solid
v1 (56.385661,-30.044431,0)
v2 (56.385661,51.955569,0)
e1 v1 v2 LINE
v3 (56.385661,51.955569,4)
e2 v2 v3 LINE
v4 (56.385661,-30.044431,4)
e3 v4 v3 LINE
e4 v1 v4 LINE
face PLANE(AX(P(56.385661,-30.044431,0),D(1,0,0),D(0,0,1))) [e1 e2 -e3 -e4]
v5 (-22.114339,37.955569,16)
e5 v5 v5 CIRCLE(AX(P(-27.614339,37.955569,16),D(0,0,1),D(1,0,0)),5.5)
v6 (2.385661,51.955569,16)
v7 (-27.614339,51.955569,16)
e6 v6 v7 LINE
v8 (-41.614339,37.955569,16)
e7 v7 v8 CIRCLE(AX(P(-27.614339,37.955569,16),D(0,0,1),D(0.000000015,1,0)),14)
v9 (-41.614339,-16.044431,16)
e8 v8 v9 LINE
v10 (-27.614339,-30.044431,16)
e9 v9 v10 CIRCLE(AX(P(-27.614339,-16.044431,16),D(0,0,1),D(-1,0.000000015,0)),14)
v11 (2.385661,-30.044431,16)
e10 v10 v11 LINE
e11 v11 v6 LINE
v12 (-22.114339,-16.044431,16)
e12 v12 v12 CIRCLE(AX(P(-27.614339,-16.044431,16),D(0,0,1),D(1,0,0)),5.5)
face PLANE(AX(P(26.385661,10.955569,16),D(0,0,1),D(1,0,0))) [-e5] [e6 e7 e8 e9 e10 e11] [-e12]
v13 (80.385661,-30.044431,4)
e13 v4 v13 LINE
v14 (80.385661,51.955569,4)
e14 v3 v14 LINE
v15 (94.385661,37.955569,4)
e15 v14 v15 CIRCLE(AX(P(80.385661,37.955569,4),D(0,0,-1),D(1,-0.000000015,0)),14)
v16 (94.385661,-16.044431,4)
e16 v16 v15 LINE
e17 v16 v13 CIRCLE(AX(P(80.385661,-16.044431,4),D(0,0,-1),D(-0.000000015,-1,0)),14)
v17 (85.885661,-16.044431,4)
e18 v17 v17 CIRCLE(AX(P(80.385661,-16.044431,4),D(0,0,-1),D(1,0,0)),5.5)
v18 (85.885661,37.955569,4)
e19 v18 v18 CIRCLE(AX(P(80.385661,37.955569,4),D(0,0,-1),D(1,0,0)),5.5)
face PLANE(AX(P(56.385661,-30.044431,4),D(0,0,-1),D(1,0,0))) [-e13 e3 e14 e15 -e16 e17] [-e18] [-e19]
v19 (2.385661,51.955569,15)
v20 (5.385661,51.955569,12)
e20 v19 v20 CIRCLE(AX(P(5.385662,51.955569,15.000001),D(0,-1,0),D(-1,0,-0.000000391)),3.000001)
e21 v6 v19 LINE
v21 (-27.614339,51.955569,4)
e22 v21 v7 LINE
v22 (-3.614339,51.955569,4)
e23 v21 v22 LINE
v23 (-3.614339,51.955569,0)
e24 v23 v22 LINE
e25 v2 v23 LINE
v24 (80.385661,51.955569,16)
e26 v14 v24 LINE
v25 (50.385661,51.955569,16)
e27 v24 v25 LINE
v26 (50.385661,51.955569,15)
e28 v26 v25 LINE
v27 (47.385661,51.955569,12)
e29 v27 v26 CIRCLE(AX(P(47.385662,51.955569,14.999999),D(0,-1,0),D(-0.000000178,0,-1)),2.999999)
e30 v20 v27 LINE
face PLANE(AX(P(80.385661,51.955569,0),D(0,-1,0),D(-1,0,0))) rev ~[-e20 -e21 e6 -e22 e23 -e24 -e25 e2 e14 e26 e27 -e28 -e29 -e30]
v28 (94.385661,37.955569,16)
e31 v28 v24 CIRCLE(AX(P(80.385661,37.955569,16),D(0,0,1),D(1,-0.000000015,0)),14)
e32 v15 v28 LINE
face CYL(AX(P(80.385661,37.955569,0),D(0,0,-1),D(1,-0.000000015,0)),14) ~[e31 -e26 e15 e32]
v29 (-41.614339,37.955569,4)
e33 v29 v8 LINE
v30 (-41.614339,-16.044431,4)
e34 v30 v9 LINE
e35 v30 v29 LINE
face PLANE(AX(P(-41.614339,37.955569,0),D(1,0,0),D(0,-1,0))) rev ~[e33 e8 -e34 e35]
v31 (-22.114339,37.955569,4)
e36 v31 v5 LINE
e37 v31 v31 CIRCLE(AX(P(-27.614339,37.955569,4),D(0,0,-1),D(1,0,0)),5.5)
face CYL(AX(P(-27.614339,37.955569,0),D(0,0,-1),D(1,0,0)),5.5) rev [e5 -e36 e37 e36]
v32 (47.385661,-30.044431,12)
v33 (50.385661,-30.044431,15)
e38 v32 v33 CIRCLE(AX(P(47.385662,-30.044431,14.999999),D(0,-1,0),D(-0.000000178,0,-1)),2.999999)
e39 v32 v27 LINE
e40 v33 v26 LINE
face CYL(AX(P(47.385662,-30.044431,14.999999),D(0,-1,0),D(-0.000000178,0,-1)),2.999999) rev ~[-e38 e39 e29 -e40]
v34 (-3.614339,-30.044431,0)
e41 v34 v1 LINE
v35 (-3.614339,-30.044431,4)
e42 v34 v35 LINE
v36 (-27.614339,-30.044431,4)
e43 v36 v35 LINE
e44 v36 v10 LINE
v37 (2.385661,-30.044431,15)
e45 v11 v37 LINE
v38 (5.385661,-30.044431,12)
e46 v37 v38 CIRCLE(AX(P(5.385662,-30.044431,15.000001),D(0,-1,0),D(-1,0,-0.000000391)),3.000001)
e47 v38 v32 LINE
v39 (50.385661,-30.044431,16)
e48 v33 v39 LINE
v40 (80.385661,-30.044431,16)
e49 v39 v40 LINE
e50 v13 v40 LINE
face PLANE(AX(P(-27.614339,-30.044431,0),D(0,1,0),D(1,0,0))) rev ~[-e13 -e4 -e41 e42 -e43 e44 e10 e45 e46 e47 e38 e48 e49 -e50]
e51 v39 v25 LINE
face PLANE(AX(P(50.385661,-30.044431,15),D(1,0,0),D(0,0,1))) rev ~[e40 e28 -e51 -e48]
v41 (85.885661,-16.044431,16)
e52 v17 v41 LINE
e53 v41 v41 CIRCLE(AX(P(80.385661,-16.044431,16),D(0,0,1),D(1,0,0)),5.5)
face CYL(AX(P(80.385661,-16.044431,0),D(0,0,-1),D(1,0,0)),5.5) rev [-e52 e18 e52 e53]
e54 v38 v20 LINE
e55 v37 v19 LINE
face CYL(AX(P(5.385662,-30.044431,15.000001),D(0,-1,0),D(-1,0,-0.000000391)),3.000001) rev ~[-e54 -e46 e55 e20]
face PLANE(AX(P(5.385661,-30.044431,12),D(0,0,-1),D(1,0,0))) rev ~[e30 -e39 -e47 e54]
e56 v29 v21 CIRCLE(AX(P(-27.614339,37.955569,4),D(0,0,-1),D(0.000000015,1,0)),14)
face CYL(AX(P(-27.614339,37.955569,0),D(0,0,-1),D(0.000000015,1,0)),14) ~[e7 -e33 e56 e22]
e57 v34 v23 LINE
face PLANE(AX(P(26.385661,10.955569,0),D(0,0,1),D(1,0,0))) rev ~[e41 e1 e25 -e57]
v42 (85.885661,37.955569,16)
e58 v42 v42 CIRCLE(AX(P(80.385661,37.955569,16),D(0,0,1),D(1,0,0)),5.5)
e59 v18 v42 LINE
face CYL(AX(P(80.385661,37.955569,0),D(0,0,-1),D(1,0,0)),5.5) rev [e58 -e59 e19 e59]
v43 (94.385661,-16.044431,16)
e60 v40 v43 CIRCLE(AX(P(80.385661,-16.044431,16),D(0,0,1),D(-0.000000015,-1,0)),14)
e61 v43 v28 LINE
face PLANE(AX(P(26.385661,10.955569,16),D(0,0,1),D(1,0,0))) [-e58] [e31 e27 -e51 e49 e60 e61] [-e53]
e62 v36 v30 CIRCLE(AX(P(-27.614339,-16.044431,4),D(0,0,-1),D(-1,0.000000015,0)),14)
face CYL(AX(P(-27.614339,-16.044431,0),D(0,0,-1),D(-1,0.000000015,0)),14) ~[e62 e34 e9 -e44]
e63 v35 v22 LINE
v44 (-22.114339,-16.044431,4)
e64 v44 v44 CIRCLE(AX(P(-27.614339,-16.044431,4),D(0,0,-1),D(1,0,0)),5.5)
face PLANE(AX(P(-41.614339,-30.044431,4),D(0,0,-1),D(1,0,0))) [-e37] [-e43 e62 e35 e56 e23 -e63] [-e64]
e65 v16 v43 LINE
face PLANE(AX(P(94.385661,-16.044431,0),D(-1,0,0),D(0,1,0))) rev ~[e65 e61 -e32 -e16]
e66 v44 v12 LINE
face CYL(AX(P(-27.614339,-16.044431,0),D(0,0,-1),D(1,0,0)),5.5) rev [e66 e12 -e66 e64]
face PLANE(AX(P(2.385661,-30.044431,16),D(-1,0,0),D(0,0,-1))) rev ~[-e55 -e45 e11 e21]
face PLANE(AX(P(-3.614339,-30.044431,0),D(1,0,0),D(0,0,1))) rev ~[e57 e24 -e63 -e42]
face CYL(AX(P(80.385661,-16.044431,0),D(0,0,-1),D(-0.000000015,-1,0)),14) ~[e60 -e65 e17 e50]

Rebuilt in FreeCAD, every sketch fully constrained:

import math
import FreeCAD as App
import Part
import Sketcher

V = App.Vector
Q = App.Units.Quantity


def add_polygon(sketch, points):
    """Adds a closed chain of lines whose ends are joined by coincident constraints."""
    first, n = sketch.GeometryCount, len(points)
    for a, b in zip(points, points[1:] + points[:1]):
        sketch.addGeometry(Part.LineSegment(App.Vector(*a, 0), App.Vector(*b, 0)), False)
    for i in range(n):
        sketch.addConstraint(Sketcher.Constraint("Coincident", first + i, 2, first + (i + 1) % n, 1))

doc = App.newDocument("Part")
body = doc.addObject("PartDesign::Body", "Body")

sketch1 = body.newObject("Sketcher::SketchObject", "Sketch")
sketch1.AttachmentSupport = (doc.getObject("XY_Plane"), [""])
sketch1.MapMode = "FlatFace"
sketch1.addGeometry([
    Part.LineSegment(V(80, 52, 0), V(-28, 52, 0)),
    Part.ArcOfCircle(Part.Circle(V(-28, 38, 0), V(0, 0, 1), 14), math.radians(90), math.radians(180)),
    Part.LineSegment(V(-42, 38, 0), V(-42, -16, 0)),
    Part.ArcOfCircle(Part.Circle(V(-28, -16, 0), V(0, 0, 1), 14), math.radians(180), math.radians(270)),
    Part.LineSegment(V(-28, -30, 0), V(80, -30, 0)),
    Part.ArcOfCircle(Part.Circle(V(80, -16, 0), V(0, 0, 1), 14), math.radians(-90), math.radians(0)),
    Part.LineSegment(V(94, -16, 0), V(94, 38, 0)),
    Part.ArcOfCircle(Part.Circle(V(80, 38, 0), V(0, 0, 1), 14), math.radians(0), math.radians(90)),
    Part.Circle(V(-28, -16, 0), V(0, 0, 1), 6),
    Part.Circle(V(80, -16, 0), V(0, 0, 1), 6),
    Part.Circle(V(-28, 38, 0), V(0, 0, 1), 6),
    Part.Circle(V(80, 38, 0), V(0, 0, 1), 6),
], False)
sketch1.addConstraint([
    Sketcher.Constraint("Tangent", 0, 2, 1, 1),
    Sketcher.Constraint("Tangent", 1, 2, 2, 1),
    Sketcher.Constraint("Tangent", 2, 2, 3, 1),
    Sketcher.Constraint("Tangent", 3, 2, 4, 1),
    Sketcher.Constraint("Tangent", 4, 2, 5, 1),
    Sketcher.Constraint("Tangent", 5, 2, 6, 1),
    Sketcher.Constraint("Tangent", 6, 2, 7, 1),
    Sketcher.Constraint("Tangent", 7, 2, 0, 1),
    Sketcher.Constraint("Horizontal", 0),
    Sketcher.Constraint("Vertical", 2),
    Sketcher.Constraint("Horizontal", 4),
    Sketcher.Constraint("Vertical", 6),
    Sketcher.Constraint("Coincident", 8, 3, 3, 3),
    Sketcher.Constraint("Coincident", 9, 3, 5, 3),
    Sketcher.Constraint("Coincident", 10, 3, 1, 3),
    Sketcher.Constraint("Coincident", 11, 3, 7, 3),
    Sketcher.Constraint("Equal", 1, 3),
    Sketcher.Constraint("Equal", 3, 5),
    Sketcher.Constraint("Equal", 5, 7),
    Sketcher.Constraint("Equal", 8, 9),
    Sketcher.Constraint("Equal", 9, 10),
    Sketcher.Constraint("Equal", 10, 11),
    Sketcher.Constraint("Diameter", 8, Q("11 mm")),
    Sketcher.Constraint("Radius", 1, Q("14 mm")),
    Sketcher.Constraint("DistanceX", 0, 2, 0, 1, Q("108 mm")),
    Sketcher.Constraint("DistanceY", 2, 2, 2, 1, Q("54 mm")),
    Sketcher.Constraint("DistanceX", 1, 3, -1, 1, Q("27.614339 mm")),
    Sketcher.Constraint("DistanceY", -1, 1, 1, 3, Q("37.955569 mm")),
])
pad1 = body.newObject("PartDesign::Pad", "Pad")
pad1.Profile = sketch1
pad1.Length = 16

sketch2 = body.newObject("Sketcher::SketchObject", "Sketch001")
sketch2.AttachmentSupport = (doc.getObject("XZ_Plane"), [""])
sketch2.MapMode = "FlatFace"
sketch2.AttachmentOffset = App.Placement(V(0, 0, 30.044431), App.Rotation())
sketch2.addGeometry(Part.LineSegment(V(50.4, 16, 0), V(2.4, 16, 0)), False)
sketch2.addGeometry(Part.LineSegment(V(2.4, 16, 0), V(2.4, 15, 0)), False)
sketch2.addGeometry(Part.ArcOfCircle(Part.Circle(V(5.4, 15, 0), V(0, 0, 1), 3), math.radians(-180), math.radians(-90)), False)
sketch2.addGeometry(Part.LineSegment(V(5.4, 12, 0), V(47.4, 12, 0)), False)
sketch2.addGeometry(Part.ArcOfCircle(Part.Circle(V(47.4, 15, 0), V(0, 0, 1), 3), math.radians(-90), math.radians(0)), False)
sketch2.addGeometry(Part.LineSegment(V(50.4, 15, 0), V(50.4, 16, 0)), False)
add_polygon(sketch2, [(56.4, 4), (56.4, 0), (94.4, 0), (94.4, 4)])
add_polygon(sketch2, [(-41.6, 4), (-41.6, 0), (-3.6, 0), (-3.6, 4)])
sketch2.addConstraint([
    Sketcher.Constraint("Coincident", 0, 2, 1, 1),
    Sketcher.Constraint("Tangent", 1, 2, 2, 1),
    Sketcher.Constraint("Tangent", 2, 2, 3, 1),
    Sketcher.Constraint("Tangent", 3, 2, 4, 1),
    Sketcher.Constraint("Tangent", 4, 2, 5, 1),
    Sketcher.Constraint("Coincident", 5, 2, 0, 1),
    Sketcher.Constraint("Horizontal", 0),
    Sketcher.Constraint("Vertical", 1),
    Sketcher.Constraint("Horizontal", 3),
    Sketcher.Constraint("Vertical", 5),
    Sketcher.Constraint("Vertical", 6),
    Sketcher.Constraint("Horizontal", 7),
    Sketcher.Constraint("Vertical", 8),
    Sketcher.Constraint("Horizontal", 9),
    Sketcher.Constraint("Vertical", 10),
    Sketcher.Constraint("Horizontal", 11),
    Sketcher.Constraint("Vertical", 12),
    Sketcher.Constraint("Horizontal", 13),
    Sketcher.Constraint("Equal", 2, 4),
    Sketcher.Constraint("PointOnObject", 6, 2, -1),
    Sketcher.Constraint("PointOnObject", 10, 2, -1),
    Sketcher.Constraint("Horizontal", 9, 2, 12, 2),
    Sketcher.Constraint("Equal", 9, 11),
    Sketcher.Constraint("Radius", 2, Q("3.000001 mm")),
    Sketcher.Constraint("DistanceX", 0, 2, 0, 1, Q("48 mm")),
    Sketcher.Constraint("DistanceX", 7, 1, 7, 2, Q("38 mm")),
    Sketcher.Constraint("DistanceY", 1, 2, 1, 1, Q("1 mm")),
    Sketcher.Constraint("DistanceY", 6, 2, 6, 1, Q("4 mm")),
    Sketcher.Constraint("DistanceY", -1, 1, 2, 3, Q("15.000001 mm")),
    Sketcher.Constraint("DistanceX", 3, 2, 6, 2, Q("9 mm")),
    Sketcher.Constraint("DistanceX", 10, 2, 1, 2, Q("44 mm")),
    Sketcher.Constraint("DistanceX", -1, 1, 4, 3, Q("47.385662 mm")),
])
pocket1 = body.newObject("PartDesign::Pocket", "Pocket")
pocket1.Profile = sketch2
pocket1.Type = "ThroughAll"

doc.recompute()
